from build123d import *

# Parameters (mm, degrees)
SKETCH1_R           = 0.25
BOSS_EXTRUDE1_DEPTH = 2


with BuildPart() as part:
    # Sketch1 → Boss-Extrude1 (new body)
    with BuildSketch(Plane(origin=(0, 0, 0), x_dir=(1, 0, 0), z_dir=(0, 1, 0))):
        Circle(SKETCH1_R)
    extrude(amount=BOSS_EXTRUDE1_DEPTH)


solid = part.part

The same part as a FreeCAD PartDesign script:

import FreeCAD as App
import Part
import Sketcher
from FreeCAD import Vector

doc = App.newDocument("Part")
body = doc.addObject("PartDesign::Body", "Body")

# Sketch on XZ plane
sketch1 = doc.addObject("Sketcher::SketchObject", "Sketch")
body.addObject(sketch1)
sketch1.AttachmentSupport = (doc.XZ_Plane, [""])
sketch1.MapMode = "FlatFace"
sketch1.addGeometry(Part.Circle(Vector(0, 0, 0), Vector(0, 0, 1), 0.25), False)
sketch1.addConstraint([
    Sketcher.Constraint("Coincident", 0, 3, -1, 1),
    Sketcher.Constraint("Diameter", 0, 0.5),
])
pad1 = doc.addObject("PartDesign::Pad", "Pad")
body.addObject(pad1)
pad1.Profile = sketch1
pad1.Length = 2
pad1.Reversed = True

doc.recompute()
